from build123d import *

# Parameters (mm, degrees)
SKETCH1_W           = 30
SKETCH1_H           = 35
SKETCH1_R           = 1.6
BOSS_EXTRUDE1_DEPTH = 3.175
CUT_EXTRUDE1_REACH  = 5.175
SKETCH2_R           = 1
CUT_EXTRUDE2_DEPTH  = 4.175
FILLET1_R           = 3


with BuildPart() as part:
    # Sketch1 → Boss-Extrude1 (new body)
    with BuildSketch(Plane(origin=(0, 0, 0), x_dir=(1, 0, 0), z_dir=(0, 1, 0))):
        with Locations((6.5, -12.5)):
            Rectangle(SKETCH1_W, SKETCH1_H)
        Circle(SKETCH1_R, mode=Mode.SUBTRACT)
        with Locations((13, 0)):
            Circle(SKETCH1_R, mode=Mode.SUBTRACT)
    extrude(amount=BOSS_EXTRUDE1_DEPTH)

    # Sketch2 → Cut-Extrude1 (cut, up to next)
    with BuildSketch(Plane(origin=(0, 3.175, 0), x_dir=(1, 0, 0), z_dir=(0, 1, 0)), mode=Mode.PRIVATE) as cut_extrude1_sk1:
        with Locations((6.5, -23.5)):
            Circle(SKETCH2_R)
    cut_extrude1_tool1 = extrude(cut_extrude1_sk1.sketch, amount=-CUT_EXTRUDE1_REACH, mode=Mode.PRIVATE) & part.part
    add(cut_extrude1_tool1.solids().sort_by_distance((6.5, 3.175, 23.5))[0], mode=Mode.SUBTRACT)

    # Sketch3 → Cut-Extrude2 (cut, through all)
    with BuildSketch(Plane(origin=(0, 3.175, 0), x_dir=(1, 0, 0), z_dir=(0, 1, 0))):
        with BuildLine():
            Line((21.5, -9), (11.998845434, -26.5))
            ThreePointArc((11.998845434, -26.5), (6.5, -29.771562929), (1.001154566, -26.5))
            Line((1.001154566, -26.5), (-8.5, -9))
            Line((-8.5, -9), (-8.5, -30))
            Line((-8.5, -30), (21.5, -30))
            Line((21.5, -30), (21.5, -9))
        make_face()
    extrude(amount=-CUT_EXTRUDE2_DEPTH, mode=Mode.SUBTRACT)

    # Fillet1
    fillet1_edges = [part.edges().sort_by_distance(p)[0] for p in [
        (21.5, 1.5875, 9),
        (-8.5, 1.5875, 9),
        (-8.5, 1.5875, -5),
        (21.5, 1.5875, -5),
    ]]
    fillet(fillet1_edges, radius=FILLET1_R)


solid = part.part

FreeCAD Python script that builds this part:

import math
import FreeCAD as App
import Part
import Sketcher
from FreeCAD import Vector
Q = App.Units.Quantity


def edges_at(feature, points):
    """Names of the edges that pass closest to the given points."""
    edges = feature.Shape.Edges
    near = lambda p: min(range(len(edges)), key=lambda i: edges[i].distToShape(Part.Vertex(*p))[0])
    return sorted({f"Edge{near(p) + 1}" for p in points})


def add_polygon(sketch, points):
    """Adds a closed chain of lines whose ends are joined by coincident constraints."""
    first, n = sketch.GeometryCount, len(points)
    for a, b in zip(points, points[1:] + points[:1]):
        sketch.addGeometry(Part.LineSegment(App.Vector(*a, 0), App.Vector(*b, 0)), False)
    for i in range(n):
        sketch.addConstraint(Sketcher.Constraint("Coincident", first + i, 2, first + (i + 1) % n, 1))

doc = App.newDocument("Part")
body = doc.addObject("PartDesign::Body", "Body")

sketch1 = body.newObject("Sketcher::SketchObject", "Sketch")
sketch1.AttachmentSupport = (doc.getObject("XZ_Plane"), [""])
sketch1.MapMode = "FlatFace"
add_polygon(sketch1, [(-8.5, -5), (-8.5, 30), (21.5, 30), (21.5, -5)])
sketch1.addGeometry(Part.Circle(Vector(0, 0, 0), Vector(0, 0, 1), 1.6), False)
sketch1.addGeometry(Part.Circle(Vector(13, 0, 0), Vector(0, 0, 1), 1.6), False)
sketch1.addConstraint(Sketcher.Constraint("Vertical", 0))
sketch1.addConstraint(Sketcher.Constraint("Horizontal", 1))
sketch1.addConstraint(Sketcher.Constraint("Vertical", 2))
sketch1.addConstraint(Sketcher.Constraint("Horizontal", 3))
sketch1.addConstraint(Sketcher.Constraint("Coincident", 4, 3, -1, 1))
sketch1.addConstraint(Sketcher.Constraint("Equal", 4, 5))
sketch1.addConstraint(Sketcher.Constraint("PointOnObject", 5, 3, -1))
sketch1.addConstraint(Sketcher.Constraint("Diameter", 4, Q("3.2 mm")))
sketch1.addConstraint(Sketcher.Constraint("DistanceX", 1, 1, 1, 2, Q("30 mm")))
sketch1.addConstraint(Sketcher.Constraint("DistanceY", 0, 1, 0, 2, Q("35 mm")))
sketch1.addConstraint(Sketcher.Constraint("DistanceX", -1, 1, 5, 3, Q("13 mm")))
sketch1.addConstraint(Sketcher.Constraint("DistanceY", -1, 1, 0, 2, Q("30 mm")))
sketch1.addConstraint(Sketcher.Constraint("DistanceX", 0, 2, -1, 1, Q("8.5 mm")))
pad1 = body.newObject("PartDesign::Pad", "Pad")
pad1.Profile = sketch1
pad1.Length = 3.175
pad1.Reversed = True

sketch2 = body.newObject("Sketcher::SketchObject", "Sketch001")
sketch2.AttachmentSupport = (doc.getObject("XZ_Plane"), [""])
sketch2.MapMode = "FlatFace"
sketch2.AttachmentOffset = App.Placement(Vector(0, 0, -3.175), App.Rotation())
sketch2.addGeometry(Part.Circle(Vector(6.5, 23.5, 0), Vector(0, 0, 1), 1), False)
sketch2.addConstraint(Sketcher.Constraint("Diameter", 0, Q("2 mm")))
sketch2.addConstraint(Sketcher.Constraint("DistanceX", -1, 1, 0, 3, Q("6.5 mm")))
sketch2.addConstraint(Sketcher.Constraint("DistanceY", -1, 1, 0, 3, Q("23.5 mm")))
pocket1 = body.newObject("PartDesign::Pocket", "Pocket")
pocket1.Profile = sketch2
pocket1.Type = "UpToFirst"
pocket1.Reversed = True

sketch3 = body.newObject("Sketcher::SketchObject", "Sketch002")
sketch3.AttachmentSupport = (doc.getObject("XZ_Plane"), [""])
sketch3.MapMode = "FlatFace"
sketch3.AttachmentOffset = App.Placement(Vector(0, 0, -3.175), App.Rotation())
sketch3.addGeometry(Part.LineSegment(Vector(22, 9, 0), Vector(12, 26, 0)), False)
sketch3.addGeometry(Part.ArcOfCircle(Part.Circle(Vector(6, 24, 0), Vector(0, 0, 1), 6), math.radians(28), math.radians(152)), False)
sketch3.addGeometry(Part.LineSegment(Vector(1, 26, 0), Vector(-8, 9, 0)), False)
sketch3.addGeometry(Part.LineSegment(Vector(-8, 9, 0), Vector(-8, 30, 0)), False)
sketch3.addGeometry(Part.LineSegment(Vector(-8, 30, 0), Vector(22, 30, 0)), False)
sketch3.addGeometry(Part.LineSegment(Vector(22, 30, 0), Vector(22, 9, 0)), False)
sketch3.addConstraint(Sketcher.Constraint("Tangent", 0, 2, 1, 1))
sketch3.addConstraint(Sketcher.Constraint("Tangent", 1, 2, 2, 1))
sketch3.addConstraint(Sketcher.Constraint("Coincident", 2, 2, 3, 1))
sketch3.addConstraint(Sketcher.Constraint("Coincident", 3, 2, 4, 1))
sketch3.addConstraint(Sketcher.Constraint("Coincident", 4, 2, 5, 1))
sketch3.addConstraint(Sketcher.Constraint("Coincident", 5, 2, 0, 1))
sketch3.addConstraint(Sketcher.Constraint("Vertical", 3))
sketch3.addConstraint(Sketcher.Constraint("Horizontal", 4))
sketch3.addConstraint(Sketcher.Constraint("Vertical", 5))
sketch3.addConstraint(Sketcher.Constraint("Horizontal", 0, 2, 1, 2))
sketch3.addConstraint(Sketcher.Constraint("Horizontal", 2, 2, 5, 2))
sketch3.addConstraint(Sketcher.Constraint("DistanceX", 4, 1, 4, 2, Q("30 mm")))
sketch3.addConstraint(Sketcher.Constraint("DistanceY", 3, 1, 3, 2, Q("21 mm")))
sketch3.addConstraint(Sketcher.Constraint("DistanceY", -1, 1, 2, 2, Q("9 mm")))
sketch3.addConstraint(Sketcher.Constraint("DistanceX", -1, 1, 1, 3, Q("6.5 mm")))
sketch3.addConstraint(Sketcher.Constraint("DistanceY", -1, 1, 0, 2, Q("26.5 mm")))
sketch3.addConstraint(Sketcher.Constraint("Radius", 1, Q("6.257013 mm")))
pocket2 = body.newObject("PartDesign::Pocket", "Pocket001")
pocket2.Profile = sketch3
pocket2.Type = "ThroughAll"
pocket2.Reversed = True
doc.recompute()

fillet = body.newObject("PartDesign::Fillet", "Fillet")
fillet.Base = (pocket2, edges_at(pocket2, [
    (21.5, 1.587, 9),
    (-8.5, 1.587, 9),
    (-8.5, 1.587, -5),
    (21.5, 1.587, -5),
]))
fillet.Radius = 3

doc.recompute()
